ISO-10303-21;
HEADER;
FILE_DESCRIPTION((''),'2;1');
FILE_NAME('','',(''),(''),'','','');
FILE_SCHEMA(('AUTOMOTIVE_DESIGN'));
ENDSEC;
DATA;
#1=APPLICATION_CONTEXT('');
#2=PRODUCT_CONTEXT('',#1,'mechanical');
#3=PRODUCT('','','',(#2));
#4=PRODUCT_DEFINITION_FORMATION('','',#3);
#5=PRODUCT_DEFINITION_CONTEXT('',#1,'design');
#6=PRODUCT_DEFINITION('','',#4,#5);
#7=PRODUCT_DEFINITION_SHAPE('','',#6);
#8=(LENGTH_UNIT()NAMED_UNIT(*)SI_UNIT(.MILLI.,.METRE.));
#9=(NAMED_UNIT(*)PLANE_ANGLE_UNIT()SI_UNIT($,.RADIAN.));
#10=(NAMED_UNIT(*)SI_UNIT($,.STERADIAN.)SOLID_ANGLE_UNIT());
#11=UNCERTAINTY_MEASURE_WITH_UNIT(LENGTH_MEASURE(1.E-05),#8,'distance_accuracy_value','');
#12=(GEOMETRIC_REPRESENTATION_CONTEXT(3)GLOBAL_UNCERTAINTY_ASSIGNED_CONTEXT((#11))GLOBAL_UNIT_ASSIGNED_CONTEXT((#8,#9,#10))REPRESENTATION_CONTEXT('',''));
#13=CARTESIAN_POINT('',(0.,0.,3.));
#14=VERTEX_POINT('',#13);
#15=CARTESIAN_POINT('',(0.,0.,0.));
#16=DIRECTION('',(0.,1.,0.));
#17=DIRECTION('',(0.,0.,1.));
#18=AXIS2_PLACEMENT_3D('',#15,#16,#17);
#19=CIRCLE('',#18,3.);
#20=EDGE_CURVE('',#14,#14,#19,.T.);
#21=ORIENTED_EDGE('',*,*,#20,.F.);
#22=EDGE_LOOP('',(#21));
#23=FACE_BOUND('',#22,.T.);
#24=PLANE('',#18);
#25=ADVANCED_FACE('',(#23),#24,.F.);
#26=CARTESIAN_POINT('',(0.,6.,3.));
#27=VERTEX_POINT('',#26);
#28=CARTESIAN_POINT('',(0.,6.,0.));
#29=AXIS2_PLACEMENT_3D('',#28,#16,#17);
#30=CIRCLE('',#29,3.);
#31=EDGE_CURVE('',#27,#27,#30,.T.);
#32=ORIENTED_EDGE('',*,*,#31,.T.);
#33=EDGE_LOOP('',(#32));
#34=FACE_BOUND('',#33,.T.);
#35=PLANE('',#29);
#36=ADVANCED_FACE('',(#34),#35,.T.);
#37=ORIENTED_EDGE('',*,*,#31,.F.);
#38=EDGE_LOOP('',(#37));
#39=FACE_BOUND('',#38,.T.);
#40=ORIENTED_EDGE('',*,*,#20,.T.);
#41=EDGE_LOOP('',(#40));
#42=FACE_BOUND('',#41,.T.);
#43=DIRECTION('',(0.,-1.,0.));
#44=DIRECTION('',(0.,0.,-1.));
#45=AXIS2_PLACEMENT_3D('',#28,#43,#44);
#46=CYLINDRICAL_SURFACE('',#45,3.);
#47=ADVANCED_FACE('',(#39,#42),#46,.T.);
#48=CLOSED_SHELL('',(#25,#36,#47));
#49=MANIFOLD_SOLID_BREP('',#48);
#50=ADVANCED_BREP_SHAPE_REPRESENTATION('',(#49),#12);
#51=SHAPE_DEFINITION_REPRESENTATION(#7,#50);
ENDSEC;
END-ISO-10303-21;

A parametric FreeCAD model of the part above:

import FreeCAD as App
import Part
import Sketcher

V = App.Vector

doc = App.newDocument("Part")
body = doc.addObject("PartDesign::Body", "Body")

# Sketch on XZ plane
sketch1 = body.newObject("Sketcher::SketchObject", "Sketch")
sketch1.AttachmentSupport = (doc.getObject("XZ_Plane"), [""])
sketch1.MapMode = "FlatFace"
sketch1.addGeometry(Part.Circle(V(0, 0, 0), V(0, 0, 1), 3), False)
sketch1.addConstraint([
    Sketcher.Constraint("Coincident", 0, 3, -1, 1),
    Sketcher.Constraint("Diameter", 0, 6.0),
])
pad1 = body.newObject("PartDesign::Pad", "Pad")
pad1.Profile = sketch1
pad1.Length = 6
pad1.Reversed = True

doc.recompute()
